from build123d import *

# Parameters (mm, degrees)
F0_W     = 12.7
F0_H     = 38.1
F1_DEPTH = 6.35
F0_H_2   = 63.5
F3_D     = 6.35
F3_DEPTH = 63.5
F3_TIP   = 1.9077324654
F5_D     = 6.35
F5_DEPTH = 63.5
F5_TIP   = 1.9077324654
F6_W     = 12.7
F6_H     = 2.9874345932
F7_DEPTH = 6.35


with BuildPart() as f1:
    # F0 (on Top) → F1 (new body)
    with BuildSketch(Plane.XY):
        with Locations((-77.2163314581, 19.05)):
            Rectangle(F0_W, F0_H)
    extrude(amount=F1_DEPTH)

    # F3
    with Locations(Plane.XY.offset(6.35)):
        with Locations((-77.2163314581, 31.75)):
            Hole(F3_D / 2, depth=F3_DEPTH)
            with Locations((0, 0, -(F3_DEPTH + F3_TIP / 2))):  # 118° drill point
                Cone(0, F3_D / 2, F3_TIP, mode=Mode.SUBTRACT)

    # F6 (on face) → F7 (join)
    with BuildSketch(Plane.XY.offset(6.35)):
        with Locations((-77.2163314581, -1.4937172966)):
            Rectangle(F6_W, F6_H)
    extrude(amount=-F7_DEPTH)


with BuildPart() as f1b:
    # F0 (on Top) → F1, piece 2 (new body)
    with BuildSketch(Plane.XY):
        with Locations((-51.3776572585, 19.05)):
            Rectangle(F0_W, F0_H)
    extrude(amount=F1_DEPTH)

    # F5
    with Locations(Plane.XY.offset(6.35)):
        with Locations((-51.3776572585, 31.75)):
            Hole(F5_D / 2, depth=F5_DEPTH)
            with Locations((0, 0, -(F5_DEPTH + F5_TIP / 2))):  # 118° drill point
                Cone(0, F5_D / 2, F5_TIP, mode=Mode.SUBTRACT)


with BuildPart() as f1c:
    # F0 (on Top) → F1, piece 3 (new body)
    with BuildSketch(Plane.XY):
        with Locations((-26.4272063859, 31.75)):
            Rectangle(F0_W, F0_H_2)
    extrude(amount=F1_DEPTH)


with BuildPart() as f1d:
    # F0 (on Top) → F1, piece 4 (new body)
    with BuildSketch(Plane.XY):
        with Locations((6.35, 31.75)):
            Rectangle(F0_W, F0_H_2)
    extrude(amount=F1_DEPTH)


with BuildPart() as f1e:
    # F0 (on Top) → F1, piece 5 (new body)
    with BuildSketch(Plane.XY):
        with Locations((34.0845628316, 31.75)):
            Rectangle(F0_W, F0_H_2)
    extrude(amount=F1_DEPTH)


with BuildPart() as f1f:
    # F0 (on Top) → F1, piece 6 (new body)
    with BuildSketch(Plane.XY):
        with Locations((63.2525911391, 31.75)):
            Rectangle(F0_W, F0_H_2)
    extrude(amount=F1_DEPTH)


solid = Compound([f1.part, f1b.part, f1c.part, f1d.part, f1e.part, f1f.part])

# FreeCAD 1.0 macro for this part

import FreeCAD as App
import Part
import Sketcher
Q = App.Units.Quantity

doc = App.newDocument("Part")
params = doc.addObject("Spreadsheet::Sheet", "Params")
for row, (alias, value) in enumerate([
    ("sketch1_width", "0.5 in"),
    ("sketch1_height", "1.5 in"),
    ("pad1_length", "0.25 in"),
    ("sketch2_diameter", "0.25 in"),
    ("hole_diameter", "0.25 in"),
    ("hole_depth", "2.5 in"),
    ("sketch3_width", "0.5 in"),
    ("pad2_length", "0.25 in"),
    ("sketch4_width", "0.5 in"),
    ("sketch4_height", "1.5 in"),
    ("pad3_length", "0.25 in"),
    ("sketch5_diameter", "0.25 in"),
    ("hole2_diameter", "0.25 in"),
    ("hole2_depth", "2.5 in"),
    ("sketch6_width", "0.5 in"),
    ("sketch6_height", "2.5 in"),
    ("pad4_length", "0.25 in"),
    ("sketch7_width", "0.5 in"),
    ("sketch7_height", "2.5 in"),
    ("pad5_length", "0.25 in"),
    ("sketch8_width", "0.5 in"),
    ("sketch8_height", "2.5 in"),
    ("pad6_length", "0.25 in"),
    ("sketch9_width", "0.5 in"),
    ("sketch9_height", "2.5 in"),
    ("pad7_length", "0.25 in"),
], start=1):
    params.set(f"A{row}", alias)
    params.set(f"B{row}", "=" + value)
    params.setAlias(f"B{row}", alias)

body = doc.addObject("PartDesign::Body", "Body")

# Sketch on XY plane
sketch1 = body.newObject("Sketcher::SketchObject", "Sketch")
sketch1.AttachmentSupport = (doc.getObject("XY_Plane"), [""])
sketch1.MapMode = "FlatFace"
sketch1.addGeometry([
    Part.LineSegment(App.Vector(-84, 38, 0), App.Vector(-84, 0, 0)),
    Part.LineSegment(App.Vector(-84, 0, 0), App.Vector(-71, 0, 0)),
    Part.LineSegment(App.Vector(-71, 0, 0), App.Vector(-71, 38, 0)),
    Part.LineSegment(App.Vector(-71, 38, 0), App.Vector(-84, 38, 0)),
], False)
sketch1.addConstraint([
    Sketcher.Constraint("Coincident", 0, 2, 1, 1),
    Sketcher.Constraint("Coincident", 1, 2, 2, 1),
    Sketcher.Constraint("Coincident", 2, 2, 3, 1),
    Sketcher.Constraint("Coincident", 3, 2, 0, 1),
    Sketcher.Constraint("Vertical", 0),
    Sketcher.Constraint("Horizontal", 1),
    Sketcher.Constraint("Vertical", 2),
    Sketcher.Constraint("Horizontal", 3),
    Sketcher.Constraint("PointOnObject", 0, 2, -1),
    Sketcher.Constraint("DistanceX", 1, 1, 1, 2, Q("0.5 in")),
    Sketcher.Constraint("DistanceY", 0, 2, 0, 1, Q("1.5 in")),
    Sketcher.Constraint("DistanceX", 0, 2, -1, 1, Q("83.566331 mm")),
])
sketch1.setExpression("Constraints[9]", "Params.sketch1_width")
sketch1.setExpression("Constraints[10]", "Params.sketch1_height")
pad1 = body.newObject("PartDesign::Pad", "Pad")
pad1.Profile = sketch1
pad1.setExpression("Length", "Params.pad1_length")

# Sketch on XY plane
sketch2 = body.newObject("Sketcher::SketchObject", "Sketch001")
sketch2.AttachmentSupport = (doc.getObject("XY_Plane"), [""])
sketch2.MapMode = "FlatFace"
sketch2.AttachmentOffset = App.Placement(App.Vector(0, 0, 0.25 * 25.4), App.Rotation())
sketch2.addGeometry(Part.Circle(App.Vector(-77.2, 31.8, 0), App.Vector(0, 0, 1), 3.2), False)
sketch2.addConstraint([
    Sketcher.Constraint("Diameter", 0, Q("0.25 in")),
    Sketcher.Constraint("DistanceY", -1, 1, 0, 3, Q("1.25 in")),
    Sketcher.Constraint("DistanceX", 0, 3, -1, 1, Q("77.216331 mm")),
])
sketch2.setExpression("Constraints[0]", "Params.sketch2_diameter")
doc.recompute()
hole = body.newObject("PartDesign::Hole", "Hole")
hole.Profile = sketch2
hole.ThreadType = "None"
hole.setExpression("Diameter", "Params.hole_diameter")
hole.DepthType = "Dimension"
hole.setExpression("Depth", "Params.hole_depth")
hole.DrillPoint = "Angled"
hole.DrillPointAngle = 118

# Sketch on XY plane
sketch3 = body.newObject("Sketcher::SketchObject", "Sketch002")
sketch3.AttachmentSupport = (doc.getObject("XY_Plane"), [""])
sketch3.MapMode = "FlatFace"
sketch3.AttachmentOffset = App.Placement(App.Vector(0, 0, 0.25 * 25.4), App.Rotation())
sketch3.addGeometry([
    Part.LineSegment(App.Vector(-83.6, 0, 0), App.Vector(-83.6, -3, 0)),
    Part.LineSegment(App.Vector(-83.6, -3, 0), App.Vector(-70.9, -3, 0)),
    Part.LineSegment(App.Vector(-70.9, -3, 0), App.Vector(-70.9, 0, 0)),
    Part.LineSegment(App.Vector(-70.9, 0, 0), App.Vector(-83.6, 0, 0)),
], False)
sketch3.addConstraint([
    Sketcher.Constraint("Coincident", 0, 2, 1, 1),
    Sketcher.Constraint("Coincident", 1, 2, 2, 1),
    Sketcher.Constraint("Coincident", 2, 2, 3, 1),
    Sketcher.Constraint("Coincident", 3, 2, 0, 1),
    Sketcher.Constraint("Vertical", 0),
    Sketcher.Constraint("Horizontal", 1),
    Sketcher.Constraint("Vertical", 2),
    Sketcher.Constraint("Horizontal", 3),
    Sketcher.Constraint("PointOnObject", 2, 2, -1),
    Sketcher.Constraint("DistanceX", 1, 1, 1, 2, Q("0.5 in")),
    Sketcher.Constraint("DistanceY", 0, 2, 0, 1, Q("2.987435 mm")),
    Sketcher.Constraint("DistanceX", 0, 2, -1, 1, Q("83.566331 mm")),
])
sketch3.setExpression("Constraints[9]", "Params.sketch3_width")
pad2 = body.newObject("PartDesign::Pad", "Pad001")
pad2.Profile = sketch3
pad2.setExpression("Length", "Params.pad2_length")
pad2.Reversed = True
body2 = doc.addObject("PartDesign::Body", "Body001")

# Sketch on XY plane
sketch4 = body2.newObject("Sketcher::SketchObject", "Sketch003")
sketch4.AttachmentSupport = (doc.getObject("XY_Plane001"), [""])
sketch4.MapMode = "FlatFace"
sketch4.addGeometry([
    Part.LineSegment(App.Vector(-58, 38, 0), App.Vector(-58, 0, 0)),
    Part.LineSegment(App.Vector(-58, 0, 0), App.Vector(-45, 0, 0)),
    Part.LineSegment(App.Vector(-45, 0, 0), App.Vector(-45, 38, 0)),
    Part.LineSegment(App.Vector(-45, 38, 0), App.Vector(-58, 38, 0)),
], False)
sketch4.addConstraint([
    Sketcher.Constraint("Coincident", 0, 2, 1, 1),
    Sketcher.Constraint("Coincident", 1, 2, 2, 1),
    Sketcher.Constraint("Coincident", 2, 2, 3, 1),
    Sketcher.Constraint("Coincident", 3, 2, 0, 1),
    Sketcher.Constraint("Vertical", 0),
    Sketcher.Constraint("Horizontal", 1),
    Sketcher.Constraint("Vertical", 2),
    Sketcher.Constraint("Horizontal", 3),
    Sketcher.Constraint("PointOnObject", 0, 2, -1),
    Sketcher.Constraint("DistanceX", 1, 1, 1, 2, Q("0.5 in")),
    Sketcher.Constraint("DistanceY", 0, 2, 0, 1, Q("1.5 in")),
    Sketcher.Constraint("DistanceX", 0, 2, -1, 1, Q("57.727657 mm")),
])
sketch4.setExpression("Constraints[9]", "Params.sketch4_width")
sketch4.setExpression("Constraints[10]", "Params.sketch4_height")
pad3 = body2.newObject("PartDesign::Pad", "Pad002")
pad3.Profile = sketch4
pad3.setExpression("Length", "Params.pad3_length")

# Sketch on XY plane
sketch5 = body2.newObject("Sketcher::SketchObject", "Sketch004")
sketch5.AttachmentSupport = (doc.getObject("XY_Plane001"), [""])
sketch5.MapMode = "FlatFace"
sketch5.AttachmentOffset = App.Placement(App.Vector(0, 0, 0.25 * 25.4), App.Rotation())
sketch5.addGeometry(Part.Circle(App.Vector(-51.4, 31.8, 0), App.Vector(0, 0, 1), 3.2), False)
sketch5.addConstraint([
    Sketcher.Constraint("Diameter", 0, Q("0.25 in")),
    Sketcher.Constraint("DistanceY", -1, 1, 0, 3, Q("1.25 in")),
    Sketcher.Constraint("DistanceX", 0, 3, -1, 1, Q("51.377657 mm")),
])
sketch5.setExpression("Constraints[0]", "Params.sketch5_diameter")
doc.recompute()
hole2 = body2.newObject("PartDesign::Hole", "Hole001")
hole2.Profile = sketch5
hole2.ThreadType = "None"
hole2.setExpression("Diameter", "Params.hole2_diameter")
hole2.DepthType = "Dimension"
hole2.setExpression("Depth", "Params.hole2_depth")
hole2.DrillPoint = "Angled"
hole2.DrillPointAngle = 118
body3 = doc.addObject("PartDesign::Body", "Body002")

# Sketch on XY plane
sketch6 = body3.newObject("Sketcher::SketchObject", "Sketch005")
sketch6.AttachmentSupport = (doc.getObject("XY_Plane002"), [""])
sketch6.MapMode = "FlatFace"
sketch6.addGeometry([
    Part.LineSegment(App.Vector(-33, 64, 0), App.Vector(-33, 0, 0)),
    Part.LineSegment(App.Vector(-33, 0, 0), App.Vector(-20, 0, 0)),
    Part.LineSegment(App.Vector(-20, 0, 0), App.Vector(-20, 64, 0)),
    Part.LineSegment(App.Vector(-20, 64, 0), App.Vector(-33, 64, 0)),
], False)
sketch6.addConstraint([
    Sketcher.Constraint("Coincident", 0, 2, 1, 1),
    Sketcher.Constraint("Coincident", 1, 2, 2, 1),
    Sketcher.Constraint("Coincident", 2, 2, 3, 1),
    Sketcher.Constraint("Coincident", 3, 2, 0, 1),
    Sketcher.Constraint("Vertical", 0),
    Sketcher.Constraint("Horizontal", 1),
    Sketcher.Constraint("Vertical", 2),
    Sketcher.Constraint("Horizontal", 3),
    Sketcher.Constraint("PointOnObject", 0, 2, -1),
    Sketcher.Constraint("DistanceX", 1, 1, 1, 2, Q("0.5 in")),
    Sketcher.Constraint("DistanceY", 0, 2, 0, 1, Q("2.5 in")),
    Sketcher.Constraint("DistanceX", 0, 2, -1, 1, Q("32.777206 mm")),
])
sketch6.setExpression("Constraints[9]", "Params.sketch6_width")
sketch6.setExpression("Constraints[10]", "Params.sketch6_height")
pad4 = body3.newObject("PartDesign::Pad", "Pad003")
pad4.Profile = sketch6
pad4.setExpression("Length", "Params.pad4_length")
body4 = doc.addObject("PartDesign::Body", "Body003")

# Sketch on XY plane
sketch7 = body4.newObject("Sketcher::SketchObject", "Sketch006")
sketch7.AttachmentSupport = (doc.getObject("XY_Plane003"), [""])
sketch7.MapMode = "FlatFace"
sketch7.addGeometry([
    Part.LineSegment(App.Vector(0, 64, 0), App.Vector(0, 0, 0)),
    Part.LineSegment(App.Vector(0, 0, 0), App.Vector(13, 0, 0)),
    Part.LineSegment(App.Vector(13, 0, 0), App.Vector(13, 64, 0)),
    Part.LineSegment(App.Vector(13, 64, 0), App.Vector(0, 64, 0)),
], False)
sketch7.addConstraint([
    Sketcher.Constraint("Coincident", 0, 2, 1, 1),
    Sketcher.Constraint("Coincident", 1, 2, 2, 1),
    Sketcher.Constraint("Coincident", 2, 2, 3, 1),
    Sketcher.Constraint("Coincident", 3, 2, 0, 1),
    Sketcher.Constraint("Vertical", 0),
    Sketcher.Constraint("Horizontal", 1),
    Sketcher.Constraint("Vertical", 2),
    Sketcher.Constraint("Horizontal", 3),
    Sketcher.Constraint("Coincident", 0, 2, -1, 1),
    Sketcher.Constraint("DistanceX", 1, 1, 1, 2, Q("0.5 in")),
    Sketcher.Constraint("DistanceY", 0, 2, 0, 1, Q("2.5 in")),
])
sketch7.setExpression("Constraints[9]", "Params.sketch7_width")
sketch7.setExpression("Constraints[10]", "Params.sketch7_height")
pad5 = body4.newObject("PartDesign::Pad", "Pad004")
pad5.Profile = sketch7
pad5.setExpression("Length", "Params.pad5_length")
body5 = doc.addObject("PartDesign::Body", "Body004")

# Sketch on XY plane
sketch8 = body5.newObject("Sketcher::SketchObject", "Sketch007")
sketch8.AttachmentSupport = (doc.getObject("XY_Plane004"), [""])
sketch8.MapMode = "FlatFace"
sketch8.addGeometry([
    Part.LineSegment(App.Vector(28, 64, 0), App.Vector(28, 0, 0)),
    Part.LineSegment(App.Vector(28, 0, 0), App.Vector(40, 0, 0)),
    Part.LineSegment(App.Vector(40, 0, 0), App.Vector(40, 64, 0)),
    Part.LineSegment(App.Vector(40, 64, 0), App.Vector(28, 64, 0)),
], False)
sketch8.addConstraint([
    Sketcher.Constraint("Coincident", 0, 2, 1, 1),
    Sketcher.Constraint("Coincident", 1, 2, 2, 1),
    Sketcher.Constraint("Coincident", 2, 2, 3, 1),
    Sketcher.Constraint("Coincident", 3, 2, 0, 1),
    Sketcher.Constraint("Vertical", 0),
    Sketcher.Constraint("Horizontal", 1),
    Sketcher.Constraint("Vertical", 2),
    Sketcher.Constraint("Horizontal", 3),
    Sketcher.Constraint("PointOnObject", 0, 2, -1),
    Sketcher.Constraint("DistanceX", 1, 1, 1, 2, Q("0.5 in")),
    Sketcher.Constraint("DistanceY", 0, 2, 0, 1, Q("2.5 in")),
    Sketcher.Constraint("DistanceX", -1, 1, 0, 2, Q("27.734563 mm")),
])
sketch8.setExpression("Constraints[9]", "Params.sketch8_width")
sketch8.setExpression("Constraints[10]", "Params.sketch8_height")
pad6 = body5.newObject("PartDesign::Pad", "Pad005")
pad6.Profile = sketch8
pad6.setExpression("Length", "Params.pad6_length")
body6 = doc.addObject("PartDesign::Body", "Body005")

# Sketch on XY plane
sketch9 = body6.newObject("Sketcher::SketchObject", "Sketch008")
sketch9.AttachmentSupport = (doc.getObject("XY_Plane005"), [""])
sketch9.MapMode = "FlatFace"
sketch9.addGeometry([
    Part.LineSegment(App.Vector(57, 64, 0), App.Vector(57, 0, 0)),
    Part.LineSegment(App.Vector(57, 0, 0), App.Vector(70, 0, 0)),
    Part.LineSegment(App.Vector(70, 0, 0), App.Vector(70, 64, 0)),
    Part.LineSegment(App.Vector(70, 64, 0), App.Vector(57, 64, 0)),
], False)
sketch9.addConstraint([
    Sketcher.Constraint("Coincident", 0, 2, 1, 1),
    Sketcher.Constraint("Coincident", 1, 2, 2, 1),
    Sketcher.Constraint("Coincident", 2, 2, 3, 1),
    Sketcher.Constraint("Coincident", 3, 2, 0, 1),
    Sketcher.Constraint("Vertical", 0),
    Sketcher.Constraint("Horizontal", 1),
    Sketcher.Constraint("Vertical", 2),
    Sketcher.Constraint("Horizontal", 3),
    Sketcher.Constraint("PointOnObject", 0, 2, -1),
    Sketcher.Constraint("DistanceX", 1, 1, 1, 2, Q("0.5 in")),
    Sketcher.Constraint("DistanceY", 0, 2, 0, 1, Q("2.5 in")),
    Sketcher.Constraint("DistanceX", -1, 1, 0, 2, Q("56.902591 mm")),
])
sketch9.setExpression("Constraints[9]", "Params.sketch9_width")
sketch9.setExpression("Constraints[10]", "Params.sketch9_height")
pad7 = body6.newObject("PartDesign::Pad", "Pad006")
pad7.Profile = sketch9
pad7.setExpression("Length", "Params.pad7_length")

doc.recompute()
